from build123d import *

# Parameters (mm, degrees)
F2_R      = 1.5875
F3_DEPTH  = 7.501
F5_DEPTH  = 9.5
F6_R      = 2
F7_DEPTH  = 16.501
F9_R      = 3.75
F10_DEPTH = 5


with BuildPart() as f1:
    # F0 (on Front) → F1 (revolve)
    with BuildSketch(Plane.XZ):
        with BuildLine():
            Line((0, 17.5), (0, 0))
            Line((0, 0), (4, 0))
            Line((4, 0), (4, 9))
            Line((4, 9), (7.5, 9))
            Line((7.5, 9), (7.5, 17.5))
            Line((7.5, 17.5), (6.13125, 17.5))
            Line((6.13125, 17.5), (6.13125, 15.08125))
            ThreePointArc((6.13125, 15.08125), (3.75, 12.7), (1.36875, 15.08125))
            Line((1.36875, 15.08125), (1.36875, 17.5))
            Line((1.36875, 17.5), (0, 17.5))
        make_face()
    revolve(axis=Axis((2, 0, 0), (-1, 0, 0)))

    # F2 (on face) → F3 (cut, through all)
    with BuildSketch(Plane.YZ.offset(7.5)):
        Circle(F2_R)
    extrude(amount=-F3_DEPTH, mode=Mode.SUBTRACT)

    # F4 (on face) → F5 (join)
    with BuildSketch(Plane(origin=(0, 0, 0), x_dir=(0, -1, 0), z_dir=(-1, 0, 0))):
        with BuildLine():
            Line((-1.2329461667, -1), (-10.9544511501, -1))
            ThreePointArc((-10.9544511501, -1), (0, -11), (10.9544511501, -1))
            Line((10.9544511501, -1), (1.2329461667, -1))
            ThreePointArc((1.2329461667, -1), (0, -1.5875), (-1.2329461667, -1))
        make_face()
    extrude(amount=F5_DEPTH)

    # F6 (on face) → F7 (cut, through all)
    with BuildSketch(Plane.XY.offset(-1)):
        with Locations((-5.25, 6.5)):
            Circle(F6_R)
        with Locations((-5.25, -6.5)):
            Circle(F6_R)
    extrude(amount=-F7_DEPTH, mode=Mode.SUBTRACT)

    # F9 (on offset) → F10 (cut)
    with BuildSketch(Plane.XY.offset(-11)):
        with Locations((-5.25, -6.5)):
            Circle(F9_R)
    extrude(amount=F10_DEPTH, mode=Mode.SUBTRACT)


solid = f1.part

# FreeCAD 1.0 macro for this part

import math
import FreeCAD as App
import Part
import Sketcher

V = App.Vector

doc = App.newDocument("Part")
body = doc.addObject("PartDesign::Body", "Body")

sketch1 = doc.addObject("Sketcher::SketchObject", "Sketch")
body.addObject(sketch1)
sketch1.AttachmentSupport = (doc.XZ_Plane, [""])
sketch1.MapMode = "FlatFace"
sketch1.addGeometry([
    Part.LineSegment(V(0, 17.5, 0), V(0, 0, 0)),
    Part.LineSegment(V(0, 0, 0), V(4, 0, 0)),
    Part.LineSegment(V(4, 0, 0), V(4, 9, 0)),
    Part.LineSegment(V(4, 9, 0), V(7.5, 9, 0)),
    Part.LineSegment(V(7.5, 9, 0), V(7.5, 17.5, 0)),
    Part.LineSegment(V(7.5, 17.5, 0), V(6.13125, 17.5, 0)),
    Part.LineSegment(V(6.13125, 17.5, 0), V(6.13125, 15.08125, 0)),
    Part.ArcOfCircle(Part.Circle(V(3.75, 15.08125, 0), V(0, 0, 1), 2.38125), math.radians(180), math.radians(360)),
    Part.LineSegment(V(1.36875, 15.08125, 0), V(1.36875, 17.5, 0)),
    Part.LineSegment(V(1.36875, 17.5, 0), V(0, 17.5, 0)),
], False)
sketch1.addConstraint([
    Sketcher.Constraint("Coincident", 0, 2, 1, 1),
    Sketcher.Constraint("Coincident", 1, 2, 2, 1),
    Sketcher.Constraint("Coincident", 2, 2, 3, 1),
    Sketcher.Constraint("Coincident", 3, 2, 4, 1),
    Sketcher.Constraint("Coincident", 4, 2, 5, 1),
    Sketcher.Constraint("Coincident", 5, 2, 6, 1),
    Sketcher.Constraint("Tangent", 6, 2, 7, 2),
    Sketcher.Constraint("Tangent", 7, 1, 8, 1),
    Sketcher.Constraint("Coincident", 8, 2, 9, 1),
    Sketcher.Constraint("Coincident", 9, 2, 0, 1),
    Sketcher.Constraint("Vertical", 0),
    Sketcher.Constraint("Horizontal", 1),
    Sketcher.Constraint("Vertical", 2),
    Sketcher.Constraint("Horizontal", 3),
    Sketcher.Constraint("Vertical", 4),
    Sketcher.Constraint("Horizontal", 5),
    Sketcher.Constraint("Vertical", 6),
    Sketcher.Constraint("Vertical", 8),
    Sketcher.Constraint("Horizontal", 9),
    Sketcher.Constraint("Coincident", 0, 2, -1, 1),
    Sketcher.Constraint("Horizontal", 5, 2, 8, 2),
    Sketcher.Constraint("Equal", 5, 9),
    Sketcher.Constraint("DistanceX", 1, 1, 1, 2, 4.0),
    Sketcher.Constraint("DistanceY", 2, 1, 2, 2, 9.0),
    Sketcher.Constraint("DistanceX", 3, 1, 3, 2, 3.5),
    Sketcher.Constraint("DistanceY", 0, 2, 0, 1, 17.5),
    Sketcher.Constraint("Radius", 7, 2.38125),
    Sketcher.Constraint("DistanceY", 6, 2, 6, 1, 2.41875),
])
revolution = doc.addObject("PartDesign::Revolution", "Revolution")
body.addObject(revolution)
revolution.Profile = sketch1
revolution.ReferenceAxis = (sketch1, ["H_Axis"])
revolution.Angle = 360

sketch2 = doc.addObject("Sketcher::SketchObject", "Sketch001")
body.addObject(sketch2)
sketch2.AttachmentSupport = (doc.YZ_Plane, [""])
sketch2.MapMode = "FlatFace"
sketch2.AttachmentOffset = App.Placement(V(0, 0, 7.5), App.Rotation())
sketch2.addGeometry(Part.Circle(V(0, 0, 0), V(0, 0, 1), 1.5875), False)
sketch2.addConstraint([
    Sketcher.Constraint("Coincident", 0, 3, -1, 1),
    Sketcher.Constraint("Diameter", 0, 3.175),
])
pocket1 = doc.addObject("PartDesign::Pocket", "Pocket")
body.addObject(pocket1)
pocket1.Profile = sketch2
pocket1.Type = "ThroughAll"

sketch3 = doc.addObject("Sketcher::SketchObject", "Sketch002")
body.addObject(sketch3)
sketch3.AttachmentSupport = (doc.YZ_Plane, [""])
sketch3.MapMode = "FlatFace"
sketch3.addGeometry([
    Part.LineSegment(V(1.232946, -1, 0), V(10.954451, -1, 0)),
    Part.ArcOfCircle(Part.Circle(V(0, 0, 0), V(0, 0, 1), 11), math.radians(-174.784091), math.radians(-5.215909)),
    Part.LineSegment(V(-10.954451, -1, 0), V(-1.232946, -1, 0)),
    Part.ArcOfCircle(Part.Circle(V(0, 0, 0), V(0, 0, 1), 1.5875), math.radians(-140.955687), math.radians(-39.044313)),
], False)
sketch3.addConstraint([
    Sketcher.Constraint("Coincident", 0, 2, 1, 2),
    Sketcher.Constraint("Coincident", 1, 1, 2, 1),
    Sketcher.Constraint("Coincident", 2, 2, 3, 1),
    Sketcher.Constraint("Coincident", 3, 2, 0, 1),
    Sketcher.Constraint("Horizontal", 0),
    Sketcher.Constraint("Horizontal", 2),
    Sketcher.Constraint("Coincident", 1, 3, -1, 1),
    Sketcher.Constraint("Coincident", 3, 3, -1, 1),
    Sketcher.Constraint("Horizontal", 0, 2, 1, 1),
    Sketcher.Constraint("Radius", 1, 11.0),
    Sketcher.Constraint("DistanceY", 0, 2, -1, 1, 1.0),
    Sketcher.Constraint("Radius", 3, 1.5875),
])
pad1 = doc.addObject("PartDesign::Pad", "Pad")
body.addObject(pad1)
pad1.Profile = sketch3
pad1.Length = 9.5
pad1.Reversed = True

sketch4 = doc.addObject("Sketcher::SketchObject", "Sketch003")
body.addObject(sketch4)
sketch4.AttachmentSupport = (doc.XY_Plane, [""])
sketch4.MapMode = "FlatFace"
sketch4.AttachmentOffset = App.Placement(V(0, 0, -1), App.Rotation())
sketch4.addGeometry([
    Part.Circle(V(-5.25, 6.5, 0), V(0, 0, 1), 2),
    Part.Circle(V(-5.25, -6.5, 0), V(0, 0, 1), 2),
], False)
sketch4.addConstraint([
    Sketcher.Constraint("Equal", 0, 1),
    Sketcher.Constraint("Symmetric", 0, 3, 1, 3, -1),
    Sketcher.Constraint("Diameter", 0, 4.0),
    Sketcher.Constraint("DistanceY", 1, 3, 0, 3, 13.0),
    Sketcher.Constraint("DistanceX", 0, 3, -1, 1, 5.25),
])
pocket2 = doc.addObject("PartDesign::Pocket", "Pocket001")
body.addObject(pocket2)
pocket2.Profile = sketch4
pocket2.Type = "ThroughAll"

sketch5 = doc.addObject("Sketcher::SketchObject", "Sketch004")
body.addObject(sketch5)
sketch5.AttachmentSupport = (doc.XY_Plane, [""])
sketch5.MapMode = "FlatFace"
sketch5.AttachmentOffset = App.Placement(V(0, 0, -11), App.Rotation())
sketch5.addGeometry(Part.Circle(V(-5.25, -6.5, 0), V(0, 0, 1), 3.75), False)
sketch5.addConstraint([
    Sketcher.Constraint("Diameter", 0, 7.5),
    Sketcher.Constraint("DistanceY", 0, 3, -1, 1, 6.5),
    Sketcher.Constraint("DistanceX", 0, 3, -1, 1, 5.25),
])
pocket3 = doc.addObject("PartDesign::Pocket", "Pocket002")
body.addObject(pocket3)
pocket3.Profile = sketch5
pocket3.Length = 5
pocket3.Reversed = True

doc.recompute()
